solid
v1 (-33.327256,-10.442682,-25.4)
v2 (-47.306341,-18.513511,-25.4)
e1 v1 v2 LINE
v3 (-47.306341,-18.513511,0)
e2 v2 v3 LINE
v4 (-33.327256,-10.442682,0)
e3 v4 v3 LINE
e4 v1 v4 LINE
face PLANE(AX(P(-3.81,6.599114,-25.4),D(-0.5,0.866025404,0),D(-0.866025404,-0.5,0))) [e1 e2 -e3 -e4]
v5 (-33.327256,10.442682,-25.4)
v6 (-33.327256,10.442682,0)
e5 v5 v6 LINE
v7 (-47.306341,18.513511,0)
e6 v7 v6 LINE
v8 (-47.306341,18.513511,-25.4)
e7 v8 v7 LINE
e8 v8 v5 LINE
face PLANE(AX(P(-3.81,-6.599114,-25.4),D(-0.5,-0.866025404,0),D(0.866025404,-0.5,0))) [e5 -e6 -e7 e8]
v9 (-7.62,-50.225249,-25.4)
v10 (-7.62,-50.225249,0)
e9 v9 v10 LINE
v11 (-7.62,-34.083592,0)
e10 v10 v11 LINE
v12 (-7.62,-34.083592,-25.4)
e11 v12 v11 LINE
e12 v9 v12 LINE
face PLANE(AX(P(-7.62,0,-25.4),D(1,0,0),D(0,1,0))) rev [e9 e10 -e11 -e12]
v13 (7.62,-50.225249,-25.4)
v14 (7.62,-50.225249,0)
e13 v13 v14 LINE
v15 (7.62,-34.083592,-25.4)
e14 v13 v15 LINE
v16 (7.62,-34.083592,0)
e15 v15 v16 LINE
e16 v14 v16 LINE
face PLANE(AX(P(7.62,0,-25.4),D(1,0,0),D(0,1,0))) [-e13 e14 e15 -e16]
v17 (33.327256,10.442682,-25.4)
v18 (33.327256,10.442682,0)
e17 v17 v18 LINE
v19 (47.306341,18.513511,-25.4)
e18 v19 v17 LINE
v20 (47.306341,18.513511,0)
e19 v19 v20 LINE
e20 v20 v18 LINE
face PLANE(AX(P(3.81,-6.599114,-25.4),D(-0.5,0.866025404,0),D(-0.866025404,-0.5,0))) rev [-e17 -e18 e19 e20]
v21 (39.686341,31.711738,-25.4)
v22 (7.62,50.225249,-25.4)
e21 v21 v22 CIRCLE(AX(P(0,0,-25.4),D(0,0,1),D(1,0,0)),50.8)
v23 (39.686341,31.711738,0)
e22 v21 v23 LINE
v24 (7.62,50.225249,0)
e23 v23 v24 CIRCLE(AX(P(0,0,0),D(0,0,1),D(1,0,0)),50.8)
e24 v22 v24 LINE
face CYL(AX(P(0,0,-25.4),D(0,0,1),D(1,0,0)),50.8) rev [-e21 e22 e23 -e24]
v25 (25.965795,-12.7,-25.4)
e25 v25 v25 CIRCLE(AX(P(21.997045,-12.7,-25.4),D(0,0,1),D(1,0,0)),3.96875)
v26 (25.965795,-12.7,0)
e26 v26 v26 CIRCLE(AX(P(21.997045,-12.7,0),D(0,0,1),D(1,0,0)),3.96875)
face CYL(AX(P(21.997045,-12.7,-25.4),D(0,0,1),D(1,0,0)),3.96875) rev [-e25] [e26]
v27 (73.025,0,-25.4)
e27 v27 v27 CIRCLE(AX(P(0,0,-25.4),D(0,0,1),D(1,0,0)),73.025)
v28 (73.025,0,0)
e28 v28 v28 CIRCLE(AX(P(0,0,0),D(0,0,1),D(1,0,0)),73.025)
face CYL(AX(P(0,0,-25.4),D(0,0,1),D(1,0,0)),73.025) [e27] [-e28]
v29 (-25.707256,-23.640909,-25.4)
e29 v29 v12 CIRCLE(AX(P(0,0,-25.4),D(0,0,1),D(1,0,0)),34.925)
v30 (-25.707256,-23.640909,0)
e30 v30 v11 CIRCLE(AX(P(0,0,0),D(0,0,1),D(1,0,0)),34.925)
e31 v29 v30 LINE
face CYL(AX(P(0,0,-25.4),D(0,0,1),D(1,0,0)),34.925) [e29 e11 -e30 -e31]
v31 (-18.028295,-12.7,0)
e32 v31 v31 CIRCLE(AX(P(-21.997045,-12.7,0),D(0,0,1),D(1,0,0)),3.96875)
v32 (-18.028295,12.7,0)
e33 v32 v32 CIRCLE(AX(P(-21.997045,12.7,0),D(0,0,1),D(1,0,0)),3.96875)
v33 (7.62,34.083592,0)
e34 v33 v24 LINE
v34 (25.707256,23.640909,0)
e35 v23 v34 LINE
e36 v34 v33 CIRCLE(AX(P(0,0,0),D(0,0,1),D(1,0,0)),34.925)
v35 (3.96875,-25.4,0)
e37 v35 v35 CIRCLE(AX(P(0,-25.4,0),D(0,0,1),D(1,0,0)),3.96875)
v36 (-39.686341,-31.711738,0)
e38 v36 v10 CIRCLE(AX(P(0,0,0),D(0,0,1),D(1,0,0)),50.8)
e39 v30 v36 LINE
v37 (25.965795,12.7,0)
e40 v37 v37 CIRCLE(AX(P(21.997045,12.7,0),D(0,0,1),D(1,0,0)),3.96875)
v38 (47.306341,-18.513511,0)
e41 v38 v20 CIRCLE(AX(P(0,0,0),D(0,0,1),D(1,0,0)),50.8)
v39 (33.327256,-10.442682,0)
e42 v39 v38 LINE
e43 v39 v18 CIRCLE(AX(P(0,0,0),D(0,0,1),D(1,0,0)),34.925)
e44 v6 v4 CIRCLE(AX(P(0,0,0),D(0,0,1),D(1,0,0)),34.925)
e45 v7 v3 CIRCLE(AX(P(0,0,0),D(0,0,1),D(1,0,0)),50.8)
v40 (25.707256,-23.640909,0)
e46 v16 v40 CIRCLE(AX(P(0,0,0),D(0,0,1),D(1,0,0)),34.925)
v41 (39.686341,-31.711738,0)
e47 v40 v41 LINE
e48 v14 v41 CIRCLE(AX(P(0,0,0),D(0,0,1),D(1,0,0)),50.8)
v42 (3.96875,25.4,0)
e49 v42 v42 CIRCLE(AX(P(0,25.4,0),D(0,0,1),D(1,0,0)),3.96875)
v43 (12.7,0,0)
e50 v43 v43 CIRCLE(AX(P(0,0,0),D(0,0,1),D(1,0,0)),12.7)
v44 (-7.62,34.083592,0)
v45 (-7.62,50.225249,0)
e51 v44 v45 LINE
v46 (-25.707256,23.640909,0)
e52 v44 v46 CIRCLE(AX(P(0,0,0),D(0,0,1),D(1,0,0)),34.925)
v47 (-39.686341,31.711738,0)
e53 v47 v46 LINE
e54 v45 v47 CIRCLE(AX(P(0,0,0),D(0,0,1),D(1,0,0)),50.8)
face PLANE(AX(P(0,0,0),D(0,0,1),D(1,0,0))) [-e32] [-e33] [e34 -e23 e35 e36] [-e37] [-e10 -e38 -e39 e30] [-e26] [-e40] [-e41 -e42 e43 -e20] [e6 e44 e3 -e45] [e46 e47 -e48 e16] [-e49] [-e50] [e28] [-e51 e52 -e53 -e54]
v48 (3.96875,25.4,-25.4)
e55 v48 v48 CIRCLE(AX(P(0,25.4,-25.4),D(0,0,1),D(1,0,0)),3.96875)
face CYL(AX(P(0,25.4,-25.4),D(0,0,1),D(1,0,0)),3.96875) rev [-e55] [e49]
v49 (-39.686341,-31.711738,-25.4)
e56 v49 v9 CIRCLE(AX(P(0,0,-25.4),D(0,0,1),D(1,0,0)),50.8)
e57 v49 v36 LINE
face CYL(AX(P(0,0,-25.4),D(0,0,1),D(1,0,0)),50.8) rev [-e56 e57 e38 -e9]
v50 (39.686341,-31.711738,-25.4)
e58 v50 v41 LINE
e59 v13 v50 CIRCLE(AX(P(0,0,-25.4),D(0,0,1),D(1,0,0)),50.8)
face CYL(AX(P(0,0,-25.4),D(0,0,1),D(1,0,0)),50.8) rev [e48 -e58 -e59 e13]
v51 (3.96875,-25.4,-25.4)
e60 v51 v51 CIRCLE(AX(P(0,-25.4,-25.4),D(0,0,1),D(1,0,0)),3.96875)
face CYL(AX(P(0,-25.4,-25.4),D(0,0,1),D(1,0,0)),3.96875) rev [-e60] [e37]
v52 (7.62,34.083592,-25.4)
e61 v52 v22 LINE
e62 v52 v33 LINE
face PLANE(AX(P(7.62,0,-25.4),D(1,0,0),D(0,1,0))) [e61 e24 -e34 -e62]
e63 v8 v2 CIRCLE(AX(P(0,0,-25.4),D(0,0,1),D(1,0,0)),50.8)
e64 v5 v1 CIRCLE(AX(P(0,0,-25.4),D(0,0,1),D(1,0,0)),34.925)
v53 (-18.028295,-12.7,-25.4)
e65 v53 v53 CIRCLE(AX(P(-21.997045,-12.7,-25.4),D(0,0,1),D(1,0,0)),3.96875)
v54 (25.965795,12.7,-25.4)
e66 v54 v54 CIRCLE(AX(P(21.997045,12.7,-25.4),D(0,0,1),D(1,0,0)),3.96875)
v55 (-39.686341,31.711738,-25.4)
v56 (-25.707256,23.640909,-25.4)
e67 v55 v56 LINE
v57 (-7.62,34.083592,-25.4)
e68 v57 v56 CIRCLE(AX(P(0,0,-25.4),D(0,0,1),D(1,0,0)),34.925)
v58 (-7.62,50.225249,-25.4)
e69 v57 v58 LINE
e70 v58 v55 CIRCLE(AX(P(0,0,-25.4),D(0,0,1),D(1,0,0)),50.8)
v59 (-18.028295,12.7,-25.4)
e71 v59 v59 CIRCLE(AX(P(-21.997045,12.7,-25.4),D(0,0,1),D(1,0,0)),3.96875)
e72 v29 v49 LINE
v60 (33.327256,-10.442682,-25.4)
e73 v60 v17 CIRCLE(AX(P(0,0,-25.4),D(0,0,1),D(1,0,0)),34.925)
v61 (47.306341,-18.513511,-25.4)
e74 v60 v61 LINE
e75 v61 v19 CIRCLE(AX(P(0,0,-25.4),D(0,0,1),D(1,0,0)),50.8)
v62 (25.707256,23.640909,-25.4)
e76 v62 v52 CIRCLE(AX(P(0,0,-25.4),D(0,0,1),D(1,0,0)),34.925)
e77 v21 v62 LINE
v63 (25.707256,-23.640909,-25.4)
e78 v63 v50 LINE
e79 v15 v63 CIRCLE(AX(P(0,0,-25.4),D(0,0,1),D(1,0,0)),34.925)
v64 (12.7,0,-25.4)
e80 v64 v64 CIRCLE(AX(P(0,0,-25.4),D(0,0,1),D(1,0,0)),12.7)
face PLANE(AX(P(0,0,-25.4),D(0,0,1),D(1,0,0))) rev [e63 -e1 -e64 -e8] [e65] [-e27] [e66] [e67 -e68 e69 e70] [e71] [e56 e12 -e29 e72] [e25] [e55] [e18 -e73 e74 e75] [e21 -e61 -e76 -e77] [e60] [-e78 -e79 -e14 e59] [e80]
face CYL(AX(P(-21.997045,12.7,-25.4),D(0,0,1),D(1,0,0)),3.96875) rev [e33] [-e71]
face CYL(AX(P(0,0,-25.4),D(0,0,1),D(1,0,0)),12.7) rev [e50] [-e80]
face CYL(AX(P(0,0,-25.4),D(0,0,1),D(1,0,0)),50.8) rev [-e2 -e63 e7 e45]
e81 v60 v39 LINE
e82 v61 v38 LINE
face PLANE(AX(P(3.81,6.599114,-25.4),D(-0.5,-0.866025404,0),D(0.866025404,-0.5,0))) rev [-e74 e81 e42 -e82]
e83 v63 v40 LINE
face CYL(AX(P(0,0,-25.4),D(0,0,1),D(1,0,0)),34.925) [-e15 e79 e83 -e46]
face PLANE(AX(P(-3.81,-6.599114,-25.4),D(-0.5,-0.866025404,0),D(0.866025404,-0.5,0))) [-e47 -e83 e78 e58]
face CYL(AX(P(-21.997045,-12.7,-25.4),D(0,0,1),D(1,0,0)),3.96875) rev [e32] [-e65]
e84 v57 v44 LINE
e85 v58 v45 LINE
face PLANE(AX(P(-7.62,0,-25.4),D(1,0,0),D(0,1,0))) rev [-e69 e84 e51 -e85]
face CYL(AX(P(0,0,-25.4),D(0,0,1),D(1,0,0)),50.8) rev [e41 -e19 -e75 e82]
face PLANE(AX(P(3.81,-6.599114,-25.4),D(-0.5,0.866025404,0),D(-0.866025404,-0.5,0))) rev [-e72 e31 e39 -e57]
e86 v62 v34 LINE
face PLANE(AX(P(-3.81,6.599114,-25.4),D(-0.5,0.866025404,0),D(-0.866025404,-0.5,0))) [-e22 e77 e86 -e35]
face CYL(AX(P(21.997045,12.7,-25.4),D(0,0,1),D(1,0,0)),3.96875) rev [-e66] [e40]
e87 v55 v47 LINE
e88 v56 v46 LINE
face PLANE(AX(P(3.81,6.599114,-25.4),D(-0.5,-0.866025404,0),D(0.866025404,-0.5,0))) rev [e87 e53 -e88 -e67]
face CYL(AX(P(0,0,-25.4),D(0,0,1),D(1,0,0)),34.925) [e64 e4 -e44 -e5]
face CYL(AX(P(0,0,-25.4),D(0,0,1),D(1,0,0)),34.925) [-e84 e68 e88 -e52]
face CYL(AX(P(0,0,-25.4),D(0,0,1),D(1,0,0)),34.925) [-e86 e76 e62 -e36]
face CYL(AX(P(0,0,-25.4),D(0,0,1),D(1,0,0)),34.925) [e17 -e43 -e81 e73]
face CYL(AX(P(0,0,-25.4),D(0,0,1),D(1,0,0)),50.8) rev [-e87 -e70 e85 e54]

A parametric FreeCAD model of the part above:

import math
import FreeCAD as App
import Part
import Sketcher

V = App.Vector
Q = App.Units.Quantity

doc = App.newDocument("Part")
body = doc.addObject("PartDesign::Body", "Body")

sketch1 = body.newObject("Sketcher::SketchObject", "Sketch")
sketch1.AttachmentSupport = (doc.getObject("XY_Plane"), [""])
sketch1.MapMode = "FlatFace"
sketch1.addGeometry(Part.Circle(V(0, 0, 0), V(0, 0, 1), 73), False)
sketch1.addConstraint(Sketcher.Constraint("Coincident", 0, 3, -1, 1))
sketch1.addConstraint(Sketcher.Constraint("Diameter", 0, Q("5.75 in")))
pad1 = body.newObject("PartDesign::Pad", "Pad")
pad1.Profile = sketch1
pad1.Length = Q("1 in")
pad1.Reversed = True

sketch2 = body.newObject("Sketcher::SketchObject", "Sketch001")
sketch2.AttachmentSupport = (doc.getObject("XY_Plane"), [""])
sketch2.MapMode = "FlatFace"
sketch2.addGeometry(Part.ArcOfCircle(Part.Circle(V(0, 0, 0), V(0, 0, 1), 50.8), math.radians(-141), math.radians(-99)), False)
sketch2.addGeometry(Part.LineSegment(V(-7.6, -50.2, 0), V(-7.6, -34.1, 0)), False)
sketch2.addGeometry(Part.ArcOfCircle(Part.Circle(V(0, 0, 0), V(0, 0, 1), 34.9), math.radians(-137), math.radians(-103)), False)
sketch2.addGeometry(Part.LineSegment(V(-25.7, -23.6, 0), V(-39.7, -31.7, 0)), False)
sketch2.addGeometry(Part.LineSegment(V(7.6, -34.1, 0), V(7.6, -50.2, 0)), False)
sketch2.addGeometry(Part.ArcOfCircle(Part.Circle(V(0, 0, 0), V(0, 0, 1), 50.8), math.radians(-81), math.radians(-39)), False)
sketch2.addGeometry(Part.LineSegment(V(39.7, -31.7, 0), V(25.7, -23.6, 0)), False)
sketch2.addGeometry(Part.ArcOfCircle(Part.Circle(V(0, 0, 0), V(0, 0, 1), 34.9), math.radians(-77), math.radians(-43)), False)
sketch2.addGeometry(Part.Circle(V(0, -25.4, 0), V(0, 0, 1), 4), False)
sketch2.addGeometry(Part.ArcOfCircle(Part.Circle(V(0, 0, 0), V(0, 0, 1), 50.8), math.radians(159), math.radians(201)), False)
sketch2.addGeometry(Part.LineSegment(V(-47.3, -18.5, 0), V(-33.3, -10.4, 0)), False)
sketch2.addGeometry(Part.ArcOfCircle(Part.Circle(V(0, 0, 0), V(0, 0, 1), 34.9), math.radians(163), math.radians(197)), False)
sketch2.addGeometry(Part.LineSegment(V(-33.3, 10.4, 0), V(-47.3, 18.5, 0)), False)
sketch2.addGeometry(Part.LineSegment(V(33.3, -10.4, 0), V(47.3, -18.5, 0)), False)
sketch2.addGeometry(Part.ArcOfCircle(Part.Circle(V(0, 0, 0), V(0, 0, 1), 50.8), math.radians(-21), math.radians(21)), False)
sketch2.addGeometry(Part.LineSegment(V(47.3, 18.5, 0), V(33.3, 10.4, 0)), False)
sketch2.addGeometry(Part.ArcOfCircle(Part.Circle(V(0, 0, 0), V(0, 0, 1), 34.9), math.radians(-17), math.radians(17)), False)
sketch2.addGeometry(Part.Circle(V(0, 0, 0), V(0, 0, 1), 12.7), False)
sketch2.addGeometry(Part.Circle(V(-22, -12.7, 0), V(0, 0, 1), 4), False)
sketch2.addGeometry(Part.Circle(V(22, -12.7, 0), V(0, 0, 1), 4), False)
sketch2.addGeometry(Part.ArcOfCircle(Part.Circle(V(0, 0, 0), V(0, 0, 1), 50.8), math.radians(99), math.radians(141)), False)
sketch2.addGeometry(Part.LineSegment(V(-39.7, 31.7, 0), V(-25.7, 23.6, 0)), False)
sketch2.addGeometry(Part.ArcOfCircle(Part.Circle(V(0, 0, 0), V(0, 0, 1), 34.9), math.radians(103), math.radians(137)), False)
sketch2.addGeometry(Part.LineSegment(V(-7.6, 34.1, 0), V(-7.6, 50.2, 0)), False)
sketch2.addGeometry(Part.Circle(V(-22, 12.7, 0), V(0, 0, 1), 4), False)
sketch2.addGeometry(Part.Circle(V(22, 12.7, 0), V(0, 0, 1), 4), False)
sketch2.addGeometry(Part.LineSegment(V(25.7, 23.6, 0), V(39.7, 31.7, 0)), False)
sketch2.addGeometry(Part.ArcOfCircle(Part.Circle(V(0, 0, 0), V(0, 0, 1), 50.8), math.radians(39), math.radians(81)), False)
sketch2.addGeometry(Part.LineSegment(V(7.6, 50.2, 0), V(7.6, 34.1, 0)), False)
sketch2.addGeometry(Part.ArcOfCircle(Part.Circle(V(0, 0, 0), V(0, 0, 1), 34.9), math.radians(43), math.radians(77)), False)
sketch2.addGeometry(Part.Circle(V(0, 25.4, 0), V(0, 0, 1), 4), False)
sketch2.addConstraint(Sketcher.Constraint("Coincident", 0, 2, 1, 1))
sketch2.addConstraint(Sketcher.Constraint("Coincident", 1, 2, 2, 2))
sketch2.addConstraint(Sketcher.Constraint("Coincident", 2, 1, 3, 1))
sketch2.addConstraint(Sketcher.Constraint("Coincident", 3, 2, 0, 1))
sketch2.addConstraint(Sketcher.Constraint("Coincident", 4, 2, 5, 1))
sketch2.addConstraint(Sketcher.Constraint("Coincident", 5, 2, 6, 1))
sketch2.addConstraint(Sketcher.Constraint("Coincident", 6, 2, 7, 2))
sketch2.addConstraint(Sketcher.Constraint("Coincident", 7, 1, 4, 1))
sketch2.addConstraint(Sketcher.Constraint("Coincident", 9, 2, 10, 1))
sketch2.addConstraint(Sketcher.Constraint("Coincident", 10, 2, 11, 2))
sketch2.addConstraint(Sketcher.Constraint("Coincident", 11, 1, 12, 1))
sketch2.addConstraint(Sketcher.Constraint("Coincident", 12, 2, 9, 1))
sketch2.addConstraint(Sketcher.Constraint("Coincident", 13, 2, 14, 1))
sketch2.addConstraint(Sketcher.Constraint("Coincident", 14, 2, 15, 1))
sketch2.addConstraint(Sketcher.Constraint("Coincident", 15, 2, 16, 2))
sketch2.addConstraint(Sketcher.Constraint("Coincident", 16, 1, 13, 1))
sketch2.addConstraint(Sketcher.Constraint("Coincident", 20, 2, 21, 1))
sketch2.addConstraint(Sketcher.Constraint("Coincident", 21, 2, 22, 2))
sketch2.addConstraint(Sketcher.Constraint("Coincident", 22, 1, 23, 1))
sketch2.addConstraint(Sketcher.Constraint("Coincident", 23, 2, 20, 1))
sketch2.addConstraint(Sketcher.Constraint("Coincident", 26, 2, 27, 1))
sketch2.addConstraint(Sketcher.Constraint("Coincident", 27, 2, 28, 1))
sketch2.addConstraint(Sketcher.Constraint("Coincident", 28, 2, 29, 2))
sketch2.addConstraint(Sketcher.Constraint("Coincident", 29, 1, 26, 1))
sketch2.addConstraint(Sketcher.Constraint("Vertical", 1))
sketch2.addConstraint(Sketcher.Constraint("Vertical", 4))
sketch2.addConstraint(Sketcher.Constraint("Vertical", 23))
sketch2.addConstraint(Sketcher.Constraint("Vertical", 28))
sketch2.addConstraint(Sketcher.Constraint("Coincident", 0, 3, -1, 1))
sketch2.addConstraint(Sketcher.Constraint("Coincident", 2, 3, -1, 1))
sketch2.addConstraint(Sketcher.Constraint("Coincident", 5, 3, -1, 1))
sketch2.addConstraint(Sketcher.Constraint("Coincident", 7, 3, -1, 1))
sketch2.addConstraint(Sketcher.Constraint("Coincident", 9, 3, -1, 1))
sketch2.addConstraint(Sketcher.Constraint("Coincident", 11, 3, -1, 1))
sketch2.addConstraint(Sketcher.Constraint("Coincident", 14, 3, -1, 1))
sketch2.addConstraint(Sketcher.Constraint("Coincident", 16, 3, -1, 1))
sketch2.addConstraint(Sketcher.Constraint("Coincident", 17, 3, -1, 1))
sketch2.addConstraint(Sketcher.Constraint("Coincident", 20, 3, -1, 1))
sketch2.addConstraint(Sketcher.Constraint("Coincident", 22, 3, -1, 1))
sketch2.addConstraint(Sketcher.Constraint("Coincident", 27, 3, -1, 1))
sketch2.addConstraint(Sketcher.Constraint("Coincident", 29, 3, -1, 1))
sketch2.addConstraint(Sketcher.Constraint("Equal", 0, 5))
sketch2.addConstraint(Sketcher.Constraint("Equal", 2, 7))
sketch2.addConstraint(Sketcher.Constraint("Equal", 5, 9))
sketch2.addConstraint(Sketcher.Constraint("Equal", 7, 11))
sketch2.addConstraint(Sketcher.Constraint("Equal", 9, 14))
sketch2.addConstraint(Sketcher.Constraint("Equal", 11, 16))
sketch2.addConstraint(Sketcher.Constraint("Equal", 8, 18))
sketch2.addConstraint(Sketcher.Constraint("Equal", 18, 19))
sketch2.addConstraint(Sketcher.Constraint("Equal", 14, 20))
sketch2.addConstraint(Sketcher.Constraint("Equal", 16, 22))
sketch2.addConstraint(Sketcher.Constraint("Equal", 19, 24))
sketch2.addConstraint(Sketcher.Constraint("Equal", 24, 25))
sketch2.addConstraint(Sketcher.Constraint("Equal", 20, 27))
sketch2.addConstraint(Sketcher.Constraint("Equal", 22, 29))
sketch2.addConstraint(Sketcher.Constraint("Equal", 25, 30))
sketch2.addConstraint(Sketcher.Constraint("Symmetric", 19, 3, 24, 3, -1, 1))
sketch2.addConstraint(Sketcher.Constraint("Symmetric", 18, 3, 25, 3, -1, 1))
sketch2.addConstraint(Sketcher.Constraint("Symmetric", 8, 3, 30, 3, -1, 1))
sketch2.addConstraint(Sketcher.Constraint("Symmetric", 18, 3, 19, 3, -2))
sketch2.addConstraint(Sketcher.Constraint("PointOnObject", 8, 3, -2))
sketch2.addConstraint(Sketcher.Constraint("Parallel", 3, 10))
sketch2.addConstraint(Sketcher.Constraint("Parallel", 6, 12))
sketch2.addConstraint(Sketcher.Constraint("Parallel", 12, 13))
sketch2.addConstraint(Sketcher.Constraint("Parallel", 10, 15))
sketch2.addConstraint(Sketcher.Constraint("Parallel", 13, 21))
sketch2.addConstraint(Sketcher.Constraint("Parallel", 15, 26))
sketch2.addConstraint(Sketcher.Constraint("Horizontal", 0, 2, 4, 2))
sketch2.addConstraint(Sketcher.Constraint("Horizontal", 3, 2, 5, 2))
sketch2.addConstraint(Sketcher.Constraint("Horizontal", 2, 1, 6, 2))
sketch2.addConstraint(Sketcher.Constraint("Horizontal", 9, 2, 13, 2))
sketch2.addConstraint(Sketcher.Constraint("Horizontal", 12, 2, 14, 2))
sketch2.addConstraint(Sketcher.Constraint("Horizontal", 20, 2, 26, 2))
sketch2.addConstraint(Sketcher.Constraint("Horizontal", 23, 2, 27, 2))
sketch2.addConstraint(Sketcher.Constraint("Vertical", 10, 2, 11, 1))
sketch2.addConstraint(Sketcher.Constraint("Vertical", 3, 2, 20, 2))
sketch2.addConstraint(Sketcher.Constraint("Vertical", 1, 2, 22, 1))
sketch2.addConstraint(Sketcher.Constraint("Equal", 6, 10))
sketch2.addConstraint(Sketcher.Constraint("Diameter", 17, Q("1 in")))
sketch2.addConstraint(Sketcher.Constraint("Radius", 0, Q("2 in")))
sketch2.addConstraint(Sketcher.Constraint("Diameter", 8, Q("0.3125 in")))
sketch2.addConstraint(Sketcher.Constraint("DistanceY", 8, 3, -1, 1, Q("1 in")))
sketch2.addConstraint(Sketcher.Constraint("Angle", 3, Q("-150 deg")))
sketch2.addConstraint(Sketcher.Constraint("Radius", 2, Q("1.375 in")))
sketch2.addConstraint(Sketcher.Constraint("DistanceY", 18, 3, -1, 1, Q("0.5 in")))
sketch2.addConstraint(Sketcher.Constraint("DistanceX", 0, 2, -1, 1, Q("0.3 in")))
sketch2.addConstraint(Sketcher.Constraint("DistanceX", 9, 2, 3, 2, Q("0.3 in")))
sketch2.addConstraint(Sketcher.Constraint("DistanceX", 2, 1, 18, 3, Q("3.710211 mm")))
pocket1 = body.newObject("PartDesign::Pocket", "Pocket")
pocket1.Profile = sketch2
pocket1.Type = "ThroughAll"
pocket1.Midplane = True

doc.recompute()
